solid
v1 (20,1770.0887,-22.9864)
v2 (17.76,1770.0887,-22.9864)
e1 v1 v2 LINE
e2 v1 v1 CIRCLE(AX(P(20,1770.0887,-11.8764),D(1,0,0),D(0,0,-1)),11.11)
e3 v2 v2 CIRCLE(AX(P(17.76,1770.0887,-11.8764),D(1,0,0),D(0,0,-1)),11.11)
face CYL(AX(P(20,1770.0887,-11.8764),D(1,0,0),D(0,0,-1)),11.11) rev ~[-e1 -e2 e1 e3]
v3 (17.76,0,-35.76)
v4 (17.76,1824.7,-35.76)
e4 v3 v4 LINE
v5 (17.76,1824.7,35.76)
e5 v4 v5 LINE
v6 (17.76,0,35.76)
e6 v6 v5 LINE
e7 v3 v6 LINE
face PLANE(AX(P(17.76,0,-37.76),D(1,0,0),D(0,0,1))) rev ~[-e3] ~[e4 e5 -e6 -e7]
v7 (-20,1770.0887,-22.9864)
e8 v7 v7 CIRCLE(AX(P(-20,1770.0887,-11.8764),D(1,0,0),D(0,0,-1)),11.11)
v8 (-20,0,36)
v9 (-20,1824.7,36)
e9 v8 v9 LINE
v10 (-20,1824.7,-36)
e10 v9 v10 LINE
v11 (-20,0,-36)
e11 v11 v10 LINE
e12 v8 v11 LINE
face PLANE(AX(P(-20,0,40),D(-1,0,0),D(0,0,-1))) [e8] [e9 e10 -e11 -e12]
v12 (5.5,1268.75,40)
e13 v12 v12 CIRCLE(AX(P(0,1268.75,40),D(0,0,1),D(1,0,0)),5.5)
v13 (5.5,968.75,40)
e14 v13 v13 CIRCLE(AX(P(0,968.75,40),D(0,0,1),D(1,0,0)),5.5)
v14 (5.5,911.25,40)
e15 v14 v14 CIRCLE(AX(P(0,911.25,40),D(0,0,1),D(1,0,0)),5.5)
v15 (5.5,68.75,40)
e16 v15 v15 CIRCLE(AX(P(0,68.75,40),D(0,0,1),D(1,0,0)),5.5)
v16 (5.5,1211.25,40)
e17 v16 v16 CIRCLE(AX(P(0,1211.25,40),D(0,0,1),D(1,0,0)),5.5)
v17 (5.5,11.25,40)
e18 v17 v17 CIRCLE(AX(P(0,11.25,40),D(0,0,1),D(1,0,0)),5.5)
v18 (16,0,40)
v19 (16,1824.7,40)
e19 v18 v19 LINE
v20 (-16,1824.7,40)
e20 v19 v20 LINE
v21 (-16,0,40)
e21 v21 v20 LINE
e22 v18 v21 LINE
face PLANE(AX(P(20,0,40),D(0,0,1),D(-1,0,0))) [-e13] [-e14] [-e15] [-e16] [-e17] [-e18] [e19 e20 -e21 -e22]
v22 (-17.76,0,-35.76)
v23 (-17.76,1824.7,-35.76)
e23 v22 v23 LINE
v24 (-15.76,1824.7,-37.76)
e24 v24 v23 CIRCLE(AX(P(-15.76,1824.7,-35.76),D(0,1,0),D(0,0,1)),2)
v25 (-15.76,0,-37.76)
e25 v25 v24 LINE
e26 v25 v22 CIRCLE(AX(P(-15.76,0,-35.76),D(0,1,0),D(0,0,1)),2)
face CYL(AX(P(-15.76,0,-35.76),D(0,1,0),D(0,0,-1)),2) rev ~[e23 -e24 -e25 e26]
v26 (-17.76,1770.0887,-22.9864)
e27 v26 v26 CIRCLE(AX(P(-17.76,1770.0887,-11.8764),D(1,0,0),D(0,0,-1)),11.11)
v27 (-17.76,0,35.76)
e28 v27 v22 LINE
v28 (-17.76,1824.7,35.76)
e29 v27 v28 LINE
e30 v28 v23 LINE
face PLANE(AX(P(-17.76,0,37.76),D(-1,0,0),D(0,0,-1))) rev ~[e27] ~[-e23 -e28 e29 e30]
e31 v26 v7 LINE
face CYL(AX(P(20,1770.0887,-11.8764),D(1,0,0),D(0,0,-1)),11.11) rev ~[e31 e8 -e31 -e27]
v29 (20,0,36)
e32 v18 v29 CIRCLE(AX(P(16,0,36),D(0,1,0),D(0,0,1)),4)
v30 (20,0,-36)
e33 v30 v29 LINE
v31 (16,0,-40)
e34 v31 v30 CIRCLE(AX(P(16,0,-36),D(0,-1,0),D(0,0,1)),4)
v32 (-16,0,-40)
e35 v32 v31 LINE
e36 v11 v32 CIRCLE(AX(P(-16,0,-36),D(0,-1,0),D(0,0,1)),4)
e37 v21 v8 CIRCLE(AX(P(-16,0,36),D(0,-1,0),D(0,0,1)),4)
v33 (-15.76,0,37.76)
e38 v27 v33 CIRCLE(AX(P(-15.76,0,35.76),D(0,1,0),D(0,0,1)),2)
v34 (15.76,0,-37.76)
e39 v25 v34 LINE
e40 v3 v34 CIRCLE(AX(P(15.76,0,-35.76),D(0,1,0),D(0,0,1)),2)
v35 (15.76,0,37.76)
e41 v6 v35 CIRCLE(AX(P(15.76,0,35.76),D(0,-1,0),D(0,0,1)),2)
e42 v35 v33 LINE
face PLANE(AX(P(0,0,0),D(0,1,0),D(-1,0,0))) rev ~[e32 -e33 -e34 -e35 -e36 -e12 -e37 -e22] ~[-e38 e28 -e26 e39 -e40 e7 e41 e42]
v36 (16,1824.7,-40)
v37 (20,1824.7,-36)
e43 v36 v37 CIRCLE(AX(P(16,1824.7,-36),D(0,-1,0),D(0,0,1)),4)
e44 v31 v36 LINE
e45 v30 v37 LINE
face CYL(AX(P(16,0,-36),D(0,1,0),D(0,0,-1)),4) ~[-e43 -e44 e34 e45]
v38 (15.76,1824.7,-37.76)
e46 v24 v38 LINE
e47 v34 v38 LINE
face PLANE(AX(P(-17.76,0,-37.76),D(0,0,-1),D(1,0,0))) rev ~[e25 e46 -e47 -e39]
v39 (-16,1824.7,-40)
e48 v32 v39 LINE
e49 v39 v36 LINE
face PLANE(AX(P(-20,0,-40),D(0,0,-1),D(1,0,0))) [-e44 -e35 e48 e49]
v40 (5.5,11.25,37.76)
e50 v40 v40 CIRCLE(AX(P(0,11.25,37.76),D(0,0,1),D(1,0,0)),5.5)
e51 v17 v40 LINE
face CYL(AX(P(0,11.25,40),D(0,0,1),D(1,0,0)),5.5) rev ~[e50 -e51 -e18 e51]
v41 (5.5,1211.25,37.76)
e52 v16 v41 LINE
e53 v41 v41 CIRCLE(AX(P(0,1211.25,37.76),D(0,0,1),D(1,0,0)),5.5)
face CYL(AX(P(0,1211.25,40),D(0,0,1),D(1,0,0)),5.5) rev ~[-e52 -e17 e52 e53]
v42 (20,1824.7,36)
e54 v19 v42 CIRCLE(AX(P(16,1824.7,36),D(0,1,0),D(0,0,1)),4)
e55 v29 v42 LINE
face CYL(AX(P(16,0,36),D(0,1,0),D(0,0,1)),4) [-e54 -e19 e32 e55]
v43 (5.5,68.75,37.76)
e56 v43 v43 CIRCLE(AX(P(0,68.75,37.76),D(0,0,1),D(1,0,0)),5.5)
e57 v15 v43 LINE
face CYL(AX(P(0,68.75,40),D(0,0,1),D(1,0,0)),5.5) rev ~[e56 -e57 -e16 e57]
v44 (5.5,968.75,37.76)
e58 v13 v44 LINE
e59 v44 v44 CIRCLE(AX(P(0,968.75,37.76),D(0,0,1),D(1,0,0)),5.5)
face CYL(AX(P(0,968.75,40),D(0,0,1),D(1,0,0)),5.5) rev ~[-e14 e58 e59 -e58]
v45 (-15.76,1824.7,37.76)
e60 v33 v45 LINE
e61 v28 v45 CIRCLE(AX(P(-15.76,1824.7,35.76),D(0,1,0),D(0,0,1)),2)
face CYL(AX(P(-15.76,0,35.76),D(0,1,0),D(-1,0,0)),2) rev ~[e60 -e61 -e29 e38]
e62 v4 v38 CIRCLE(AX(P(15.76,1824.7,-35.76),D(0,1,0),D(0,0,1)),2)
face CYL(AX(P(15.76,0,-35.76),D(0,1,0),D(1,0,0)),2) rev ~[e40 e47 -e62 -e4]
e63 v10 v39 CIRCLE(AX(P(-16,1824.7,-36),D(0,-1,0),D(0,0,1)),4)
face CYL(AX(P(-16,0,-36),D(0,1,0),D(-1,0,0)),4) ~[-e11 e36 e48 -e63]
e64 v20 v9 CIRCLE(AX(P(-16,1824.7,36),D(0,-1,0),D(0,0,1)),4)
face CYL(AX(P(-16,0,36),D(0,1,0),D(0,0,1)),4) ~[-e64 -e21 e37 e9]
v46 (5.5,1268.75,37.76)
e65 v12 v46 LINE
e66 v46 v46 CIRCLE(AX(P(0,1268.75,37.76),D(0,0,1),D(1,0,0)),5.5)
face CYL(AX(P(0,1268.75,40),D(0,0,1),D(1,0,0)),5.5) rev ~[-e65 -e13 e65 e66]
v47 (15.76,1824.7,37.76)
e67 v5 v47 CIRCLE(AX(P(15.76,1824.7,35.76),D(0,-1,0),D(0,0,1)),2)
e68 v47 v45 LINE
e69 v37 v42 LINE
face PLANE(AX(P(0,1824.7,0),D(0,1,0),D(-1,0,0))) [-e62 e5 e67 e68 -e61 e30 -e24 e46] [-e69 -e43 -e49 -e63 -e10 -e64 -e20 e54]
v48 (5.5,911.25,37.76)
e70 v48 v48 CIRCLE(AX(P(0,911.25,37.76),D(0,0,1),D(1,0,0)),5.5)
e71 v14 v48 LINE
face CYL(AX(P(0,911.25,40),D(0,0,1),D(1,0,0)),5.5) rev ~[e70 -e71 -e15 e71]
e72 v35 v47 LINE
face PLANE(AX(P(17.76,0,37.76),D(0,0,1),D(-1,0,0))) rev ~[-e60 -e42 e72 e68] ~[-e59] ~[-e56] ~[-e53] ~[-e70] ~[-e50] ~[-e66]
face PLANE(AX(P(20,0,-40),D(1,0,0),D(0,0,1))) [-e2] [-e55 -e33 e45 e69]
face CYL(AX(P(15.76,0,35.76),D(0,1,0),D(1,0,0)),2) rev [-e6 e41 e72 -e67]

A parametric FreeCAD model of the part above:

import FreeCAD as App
import Part
import Sketcher
from FreeCAD import Vector
Q = App.Units.Quantity


def edges_at(feature, points):
    """Names of the edges that pass closest to the given points."""
    edges = feature.Shape.Edges
    near = lambda p: min(range(len(edges)), key=lambda i: edges[i].distToShape(Part.Vertex(*p))[0])
    return sorted({f"Edge{near(p) + 1}" for p in points})


def add_polygon(sketch, points):
    """Adds a closed chain of lines whose ends are joined by coincident constraints."""
    first, n = sketch.GeometryCount, len(points)
    for a, b in zip(points, points[1:] + points[:1]):
        sketch.addGeometry(Part.LineSegment(App.Vector(*a, 0), App.Vector(*b, 0)), False)
    for i in range(n):
        sketch.addConstraint(Sketcher.Constraint("Coincident", first + i, 2, first + (i + 1) % n, 1))

doc = App.newDocument("Part")
params = doc.addObject("Spreadsheet::Sheet", "Params")
for row, (alias, value) in enumerate([
    ("sketch1_width", "40 mm"),
    ("sketch1_height", "80 mm"),
    ("sketch1_width2", "35.52 mm"),
    ("pad1_length", "1824.7 mm"),
    ("fillet_radius", "2 mm"),
    ("fillet2_radius", "4 mm"),
    ("sketch2_diameter", "11 mm"),
    ("pocket1_length", "10 mm"),
    ("sketch3_diameter", "22.22 mm"),
], start=1):
    params.set(f"A{row}", alias)
    params.set(f"B{row}", "=" + value)
    params.setAlias(f"B{row}", alias)

body = doc.addObject("PartDesign::Body", "Body")

sketch1 = body.newObject("Sketcher::SketchObject", "Sketch")
sketch1.AttachmentSupport = (doc.getObject("XZ_Plane"), [""])
sketch1.MapMode = "FlatFace"
add_polygon(sketch1, [(-20, 40), (20, 40), (20, -40), (-20, -40)])
add_polygon(sketch1, [(18, -38), (18, 38), (-18, 38), (-18, -38)])
sketch1.addConstraint(Sketcher.Constraint("Horizontal", 0))
sketch1.addConstraint(Sketcher.Constraint("Vertical", 1))
sketch1.addConstraint(Sketcher.Constraint("Horizontal", 2))
sketch1.addConstraint(Sketcher.Constraint("Vertical", 3))
sketch1.addConstraint(Sketcher.Constraint("Vertical", 4))
sketch1.addConstraint(Sketcher.Constraint("Horizontal", 5))
sketch1.addConstraint(Sketcher.Constraint("Vertical", 6))
sketch1.addConstraint(Sketcher.Constraint("Horizontal", 7))
sketch1.addConstraint(Sketcher.Constraint("Symmetric", 0, 2, 2, 2, -1, 1))
sketch1.addConstraint(Sketcher.Constraint("Symmetric", 4, 2, 6, 2, -1, 1))
sketch1.addConstraint(Sketcher.Constraint("DistanceX", 0, 1, 0, 2, Q("40 mm")))
sketch1.addConstraint(Sketcher.Constraint("DistanceY", 1, 2, 1, 1, Q("80 mm")))
sketch1.addConstraint(Sketcher.Constraint("DistanceX", 5, 2, 5, 1, Q("35.52 mm")))
sketch1.addConstraint(Sketcher.Constraint("DistanceY", 4, 2, 0, 2, Q("2.24 mm")))
sketch1.setExpression("Constraints[18]", "Params.sketch1_width")
sketch1.setExpression("Constraints[19]", "Params.sketch1_height")
sketch1.setExpression("Constraints[20]", "Params.sketch1_width2")
pad1 = body.newObject("PartDesign::Pad", "Pad")
pad1.Profile = sketch1
pad1.setExpression("Length", "Params.pad1_length")
pad1.Reversed = True
doc.recompute()

fillet = body.newObject("PartDesign::Fillet", "Fillet")
fillet.Base = (pad1, edges_at(pad1, [
    (-17.76, 912.35, 37.76),
    (17.76, 912.35, -37.76),
    (17.76, 912.35, 37.76),
    (-17.76, 912.35, -37.76),
]))
fillet.setExpression("Radius", "Params.fillet_radius")
doc.recompute()

fillet2 = body.newObject("PartDesign::Fillet", "Fillet001")
fillet2.Base = (fillet, edges_at(fillet, [
    (20, 912.35, 40),
    (-20, 912.35, 40),
    (20, 912.35, -40),
    (-20, 912.35, -40),
]))
fillet2.setExpression("Radius", "Params.fillet2_radius")

sketch2 = body.newObject("Sketcher::SketchObject", "Sketch001")
sketch2.AttachmentSupport = (doc.getObject("XY_Plane"), [""])
sketch2.MapMode = "FlatFace"
sketch2.AttachmentOffset = App.Placement(Vector(0, 0, 40), App.Rotation())
sketch2.addGeometry(Part.Circle(Vector(0, 11, 0), Vector(0, 0, 1), 6), False)
sketch2.addGeometry(Part.Circle(Vector(0, 69, 0), Vector(0, 0, 1), 6), False)
sketch2.addGeometry(Part.Circle(Vector(0, 911, 0), Vector(0, 0, 1), 6), False)
sketch2.addGeometry(Part.Circle(Vector(0, 969, 0), Vector(0, 0, 1), 6), False)
sketch2.addGeometry(Part.Circle(Vector(0, 1269, 0), Vector(0, 0, 1), 6), False)
sketch2.addGeometry(Part.Circle(Vector(0, 1211, 0), Vector(0, 0, 1), 6), False)
sketch2.addConstraint(Sketcher.Constraint("Equal", 0, 1))
sketch2.addConstraint(Sketcher.Constraint("Equal", 1, 2))
sketch2.addConstraint(Sketcher.Constraint("Equal", 2, 3))
sketch2.addConstraint(Sketcher.Constraint("Equal", 3, 4))
sketch2.addConstraint(Sketcher.Constraint("Equal", 4, 5))
sketch2.addConstraint(Sketcher.Constraint("PointOnObject", 0, 3, -2))
sketch2.addConstraint(Sketcher.Constraint("PointOnObject", 1, 3, -2))
sketch2.addConstraint(Sketcher.Constraint("PointOnObject", 2, 3, -2))
sketch2.addConstraint(Sketcher.Constraint("PointOnObject", 3, 3, -2))
sketch2.addConstraint(Sketcher.Constraint("PointOnObject", 4, 3, -2))
sketch2.addConstraint(Sketcher.Constraint("PointOnObject", 5, 3, -2))
sketch2.addConstraint(Sketcher.Constraint("Diameter", 0, Q("11 mm")))
sketch2.addConstraint(Sketcher.Constraint("DistanceY", 0, 3, 2, 3, Q("900 mm")))
sketch2.addConstraint(Sketcher.Constraint("DistanceY", 1, 3, 3, 3, Q("900 mm")))
sketch2.addConstraint(Sketcher.Constraint("DistanceY", 3, 3, 4, 3, Q("300 mm")))
sketch2.addConstraint(Sketcher.Constraint("DistanceY", 2, 3, 5, 3, Q("300 mm")))
sketch2.addConstraint(Sketcher.Constraint("DistanceY", 0, 3, 1, 3, Q("57.5 mm")))
sketch2.addConstraint(Sketcher.Constraint("DistanceY", -1, 1, 0, 3, Q("11.25 mm")))
sketch2.setExpression("Constraints[11]", "Params.sketch2_diameter")
pocket1 = body.newObject("PartDesign::Pocket", "Pocket")
pocket1.Profile = sketch2
pocket1.setExpression("Length", "Params.pocket1_length")

sketch3 = body.newObject("Sketcher::SketchObject", "Sketch002")
sketch3.AttachmentSupport = (doc.getObject("YZ_Plane"), [""])
sketch3.MapMode = "FlatFace"
sketch3.AttachmentOffset = App.Placement(Vector(0, 0, 20), App.Rotation())
sketch3.addGeometry(Part.Circle(Vector(1770, -12, 0), Vector(0, 0, 1), 11), False)
sketch3.addConstraint(Sketcher.Constraint("Diameter", 0, Q("22.22 mm")))
sketch3.addConstraint(Sketcher.Constraint("DistanceX", -1, 1, 0, 3, Q("1770.0887 mm")))
sketch3.addConstraint(Sketcher.Constraint("DistanceY", 0, 3, -1, 1, Q("11.8764 mm")))
sketch3.setExpression("Constraints[0]", "Params.sketch3_diameter")
pocket2 = body.newObject("PartDesign::Pocket", "Pocket001")
pocket2.Profile = sketch3
pocket2.Type = "ThroughAll"

doc.recompute()
